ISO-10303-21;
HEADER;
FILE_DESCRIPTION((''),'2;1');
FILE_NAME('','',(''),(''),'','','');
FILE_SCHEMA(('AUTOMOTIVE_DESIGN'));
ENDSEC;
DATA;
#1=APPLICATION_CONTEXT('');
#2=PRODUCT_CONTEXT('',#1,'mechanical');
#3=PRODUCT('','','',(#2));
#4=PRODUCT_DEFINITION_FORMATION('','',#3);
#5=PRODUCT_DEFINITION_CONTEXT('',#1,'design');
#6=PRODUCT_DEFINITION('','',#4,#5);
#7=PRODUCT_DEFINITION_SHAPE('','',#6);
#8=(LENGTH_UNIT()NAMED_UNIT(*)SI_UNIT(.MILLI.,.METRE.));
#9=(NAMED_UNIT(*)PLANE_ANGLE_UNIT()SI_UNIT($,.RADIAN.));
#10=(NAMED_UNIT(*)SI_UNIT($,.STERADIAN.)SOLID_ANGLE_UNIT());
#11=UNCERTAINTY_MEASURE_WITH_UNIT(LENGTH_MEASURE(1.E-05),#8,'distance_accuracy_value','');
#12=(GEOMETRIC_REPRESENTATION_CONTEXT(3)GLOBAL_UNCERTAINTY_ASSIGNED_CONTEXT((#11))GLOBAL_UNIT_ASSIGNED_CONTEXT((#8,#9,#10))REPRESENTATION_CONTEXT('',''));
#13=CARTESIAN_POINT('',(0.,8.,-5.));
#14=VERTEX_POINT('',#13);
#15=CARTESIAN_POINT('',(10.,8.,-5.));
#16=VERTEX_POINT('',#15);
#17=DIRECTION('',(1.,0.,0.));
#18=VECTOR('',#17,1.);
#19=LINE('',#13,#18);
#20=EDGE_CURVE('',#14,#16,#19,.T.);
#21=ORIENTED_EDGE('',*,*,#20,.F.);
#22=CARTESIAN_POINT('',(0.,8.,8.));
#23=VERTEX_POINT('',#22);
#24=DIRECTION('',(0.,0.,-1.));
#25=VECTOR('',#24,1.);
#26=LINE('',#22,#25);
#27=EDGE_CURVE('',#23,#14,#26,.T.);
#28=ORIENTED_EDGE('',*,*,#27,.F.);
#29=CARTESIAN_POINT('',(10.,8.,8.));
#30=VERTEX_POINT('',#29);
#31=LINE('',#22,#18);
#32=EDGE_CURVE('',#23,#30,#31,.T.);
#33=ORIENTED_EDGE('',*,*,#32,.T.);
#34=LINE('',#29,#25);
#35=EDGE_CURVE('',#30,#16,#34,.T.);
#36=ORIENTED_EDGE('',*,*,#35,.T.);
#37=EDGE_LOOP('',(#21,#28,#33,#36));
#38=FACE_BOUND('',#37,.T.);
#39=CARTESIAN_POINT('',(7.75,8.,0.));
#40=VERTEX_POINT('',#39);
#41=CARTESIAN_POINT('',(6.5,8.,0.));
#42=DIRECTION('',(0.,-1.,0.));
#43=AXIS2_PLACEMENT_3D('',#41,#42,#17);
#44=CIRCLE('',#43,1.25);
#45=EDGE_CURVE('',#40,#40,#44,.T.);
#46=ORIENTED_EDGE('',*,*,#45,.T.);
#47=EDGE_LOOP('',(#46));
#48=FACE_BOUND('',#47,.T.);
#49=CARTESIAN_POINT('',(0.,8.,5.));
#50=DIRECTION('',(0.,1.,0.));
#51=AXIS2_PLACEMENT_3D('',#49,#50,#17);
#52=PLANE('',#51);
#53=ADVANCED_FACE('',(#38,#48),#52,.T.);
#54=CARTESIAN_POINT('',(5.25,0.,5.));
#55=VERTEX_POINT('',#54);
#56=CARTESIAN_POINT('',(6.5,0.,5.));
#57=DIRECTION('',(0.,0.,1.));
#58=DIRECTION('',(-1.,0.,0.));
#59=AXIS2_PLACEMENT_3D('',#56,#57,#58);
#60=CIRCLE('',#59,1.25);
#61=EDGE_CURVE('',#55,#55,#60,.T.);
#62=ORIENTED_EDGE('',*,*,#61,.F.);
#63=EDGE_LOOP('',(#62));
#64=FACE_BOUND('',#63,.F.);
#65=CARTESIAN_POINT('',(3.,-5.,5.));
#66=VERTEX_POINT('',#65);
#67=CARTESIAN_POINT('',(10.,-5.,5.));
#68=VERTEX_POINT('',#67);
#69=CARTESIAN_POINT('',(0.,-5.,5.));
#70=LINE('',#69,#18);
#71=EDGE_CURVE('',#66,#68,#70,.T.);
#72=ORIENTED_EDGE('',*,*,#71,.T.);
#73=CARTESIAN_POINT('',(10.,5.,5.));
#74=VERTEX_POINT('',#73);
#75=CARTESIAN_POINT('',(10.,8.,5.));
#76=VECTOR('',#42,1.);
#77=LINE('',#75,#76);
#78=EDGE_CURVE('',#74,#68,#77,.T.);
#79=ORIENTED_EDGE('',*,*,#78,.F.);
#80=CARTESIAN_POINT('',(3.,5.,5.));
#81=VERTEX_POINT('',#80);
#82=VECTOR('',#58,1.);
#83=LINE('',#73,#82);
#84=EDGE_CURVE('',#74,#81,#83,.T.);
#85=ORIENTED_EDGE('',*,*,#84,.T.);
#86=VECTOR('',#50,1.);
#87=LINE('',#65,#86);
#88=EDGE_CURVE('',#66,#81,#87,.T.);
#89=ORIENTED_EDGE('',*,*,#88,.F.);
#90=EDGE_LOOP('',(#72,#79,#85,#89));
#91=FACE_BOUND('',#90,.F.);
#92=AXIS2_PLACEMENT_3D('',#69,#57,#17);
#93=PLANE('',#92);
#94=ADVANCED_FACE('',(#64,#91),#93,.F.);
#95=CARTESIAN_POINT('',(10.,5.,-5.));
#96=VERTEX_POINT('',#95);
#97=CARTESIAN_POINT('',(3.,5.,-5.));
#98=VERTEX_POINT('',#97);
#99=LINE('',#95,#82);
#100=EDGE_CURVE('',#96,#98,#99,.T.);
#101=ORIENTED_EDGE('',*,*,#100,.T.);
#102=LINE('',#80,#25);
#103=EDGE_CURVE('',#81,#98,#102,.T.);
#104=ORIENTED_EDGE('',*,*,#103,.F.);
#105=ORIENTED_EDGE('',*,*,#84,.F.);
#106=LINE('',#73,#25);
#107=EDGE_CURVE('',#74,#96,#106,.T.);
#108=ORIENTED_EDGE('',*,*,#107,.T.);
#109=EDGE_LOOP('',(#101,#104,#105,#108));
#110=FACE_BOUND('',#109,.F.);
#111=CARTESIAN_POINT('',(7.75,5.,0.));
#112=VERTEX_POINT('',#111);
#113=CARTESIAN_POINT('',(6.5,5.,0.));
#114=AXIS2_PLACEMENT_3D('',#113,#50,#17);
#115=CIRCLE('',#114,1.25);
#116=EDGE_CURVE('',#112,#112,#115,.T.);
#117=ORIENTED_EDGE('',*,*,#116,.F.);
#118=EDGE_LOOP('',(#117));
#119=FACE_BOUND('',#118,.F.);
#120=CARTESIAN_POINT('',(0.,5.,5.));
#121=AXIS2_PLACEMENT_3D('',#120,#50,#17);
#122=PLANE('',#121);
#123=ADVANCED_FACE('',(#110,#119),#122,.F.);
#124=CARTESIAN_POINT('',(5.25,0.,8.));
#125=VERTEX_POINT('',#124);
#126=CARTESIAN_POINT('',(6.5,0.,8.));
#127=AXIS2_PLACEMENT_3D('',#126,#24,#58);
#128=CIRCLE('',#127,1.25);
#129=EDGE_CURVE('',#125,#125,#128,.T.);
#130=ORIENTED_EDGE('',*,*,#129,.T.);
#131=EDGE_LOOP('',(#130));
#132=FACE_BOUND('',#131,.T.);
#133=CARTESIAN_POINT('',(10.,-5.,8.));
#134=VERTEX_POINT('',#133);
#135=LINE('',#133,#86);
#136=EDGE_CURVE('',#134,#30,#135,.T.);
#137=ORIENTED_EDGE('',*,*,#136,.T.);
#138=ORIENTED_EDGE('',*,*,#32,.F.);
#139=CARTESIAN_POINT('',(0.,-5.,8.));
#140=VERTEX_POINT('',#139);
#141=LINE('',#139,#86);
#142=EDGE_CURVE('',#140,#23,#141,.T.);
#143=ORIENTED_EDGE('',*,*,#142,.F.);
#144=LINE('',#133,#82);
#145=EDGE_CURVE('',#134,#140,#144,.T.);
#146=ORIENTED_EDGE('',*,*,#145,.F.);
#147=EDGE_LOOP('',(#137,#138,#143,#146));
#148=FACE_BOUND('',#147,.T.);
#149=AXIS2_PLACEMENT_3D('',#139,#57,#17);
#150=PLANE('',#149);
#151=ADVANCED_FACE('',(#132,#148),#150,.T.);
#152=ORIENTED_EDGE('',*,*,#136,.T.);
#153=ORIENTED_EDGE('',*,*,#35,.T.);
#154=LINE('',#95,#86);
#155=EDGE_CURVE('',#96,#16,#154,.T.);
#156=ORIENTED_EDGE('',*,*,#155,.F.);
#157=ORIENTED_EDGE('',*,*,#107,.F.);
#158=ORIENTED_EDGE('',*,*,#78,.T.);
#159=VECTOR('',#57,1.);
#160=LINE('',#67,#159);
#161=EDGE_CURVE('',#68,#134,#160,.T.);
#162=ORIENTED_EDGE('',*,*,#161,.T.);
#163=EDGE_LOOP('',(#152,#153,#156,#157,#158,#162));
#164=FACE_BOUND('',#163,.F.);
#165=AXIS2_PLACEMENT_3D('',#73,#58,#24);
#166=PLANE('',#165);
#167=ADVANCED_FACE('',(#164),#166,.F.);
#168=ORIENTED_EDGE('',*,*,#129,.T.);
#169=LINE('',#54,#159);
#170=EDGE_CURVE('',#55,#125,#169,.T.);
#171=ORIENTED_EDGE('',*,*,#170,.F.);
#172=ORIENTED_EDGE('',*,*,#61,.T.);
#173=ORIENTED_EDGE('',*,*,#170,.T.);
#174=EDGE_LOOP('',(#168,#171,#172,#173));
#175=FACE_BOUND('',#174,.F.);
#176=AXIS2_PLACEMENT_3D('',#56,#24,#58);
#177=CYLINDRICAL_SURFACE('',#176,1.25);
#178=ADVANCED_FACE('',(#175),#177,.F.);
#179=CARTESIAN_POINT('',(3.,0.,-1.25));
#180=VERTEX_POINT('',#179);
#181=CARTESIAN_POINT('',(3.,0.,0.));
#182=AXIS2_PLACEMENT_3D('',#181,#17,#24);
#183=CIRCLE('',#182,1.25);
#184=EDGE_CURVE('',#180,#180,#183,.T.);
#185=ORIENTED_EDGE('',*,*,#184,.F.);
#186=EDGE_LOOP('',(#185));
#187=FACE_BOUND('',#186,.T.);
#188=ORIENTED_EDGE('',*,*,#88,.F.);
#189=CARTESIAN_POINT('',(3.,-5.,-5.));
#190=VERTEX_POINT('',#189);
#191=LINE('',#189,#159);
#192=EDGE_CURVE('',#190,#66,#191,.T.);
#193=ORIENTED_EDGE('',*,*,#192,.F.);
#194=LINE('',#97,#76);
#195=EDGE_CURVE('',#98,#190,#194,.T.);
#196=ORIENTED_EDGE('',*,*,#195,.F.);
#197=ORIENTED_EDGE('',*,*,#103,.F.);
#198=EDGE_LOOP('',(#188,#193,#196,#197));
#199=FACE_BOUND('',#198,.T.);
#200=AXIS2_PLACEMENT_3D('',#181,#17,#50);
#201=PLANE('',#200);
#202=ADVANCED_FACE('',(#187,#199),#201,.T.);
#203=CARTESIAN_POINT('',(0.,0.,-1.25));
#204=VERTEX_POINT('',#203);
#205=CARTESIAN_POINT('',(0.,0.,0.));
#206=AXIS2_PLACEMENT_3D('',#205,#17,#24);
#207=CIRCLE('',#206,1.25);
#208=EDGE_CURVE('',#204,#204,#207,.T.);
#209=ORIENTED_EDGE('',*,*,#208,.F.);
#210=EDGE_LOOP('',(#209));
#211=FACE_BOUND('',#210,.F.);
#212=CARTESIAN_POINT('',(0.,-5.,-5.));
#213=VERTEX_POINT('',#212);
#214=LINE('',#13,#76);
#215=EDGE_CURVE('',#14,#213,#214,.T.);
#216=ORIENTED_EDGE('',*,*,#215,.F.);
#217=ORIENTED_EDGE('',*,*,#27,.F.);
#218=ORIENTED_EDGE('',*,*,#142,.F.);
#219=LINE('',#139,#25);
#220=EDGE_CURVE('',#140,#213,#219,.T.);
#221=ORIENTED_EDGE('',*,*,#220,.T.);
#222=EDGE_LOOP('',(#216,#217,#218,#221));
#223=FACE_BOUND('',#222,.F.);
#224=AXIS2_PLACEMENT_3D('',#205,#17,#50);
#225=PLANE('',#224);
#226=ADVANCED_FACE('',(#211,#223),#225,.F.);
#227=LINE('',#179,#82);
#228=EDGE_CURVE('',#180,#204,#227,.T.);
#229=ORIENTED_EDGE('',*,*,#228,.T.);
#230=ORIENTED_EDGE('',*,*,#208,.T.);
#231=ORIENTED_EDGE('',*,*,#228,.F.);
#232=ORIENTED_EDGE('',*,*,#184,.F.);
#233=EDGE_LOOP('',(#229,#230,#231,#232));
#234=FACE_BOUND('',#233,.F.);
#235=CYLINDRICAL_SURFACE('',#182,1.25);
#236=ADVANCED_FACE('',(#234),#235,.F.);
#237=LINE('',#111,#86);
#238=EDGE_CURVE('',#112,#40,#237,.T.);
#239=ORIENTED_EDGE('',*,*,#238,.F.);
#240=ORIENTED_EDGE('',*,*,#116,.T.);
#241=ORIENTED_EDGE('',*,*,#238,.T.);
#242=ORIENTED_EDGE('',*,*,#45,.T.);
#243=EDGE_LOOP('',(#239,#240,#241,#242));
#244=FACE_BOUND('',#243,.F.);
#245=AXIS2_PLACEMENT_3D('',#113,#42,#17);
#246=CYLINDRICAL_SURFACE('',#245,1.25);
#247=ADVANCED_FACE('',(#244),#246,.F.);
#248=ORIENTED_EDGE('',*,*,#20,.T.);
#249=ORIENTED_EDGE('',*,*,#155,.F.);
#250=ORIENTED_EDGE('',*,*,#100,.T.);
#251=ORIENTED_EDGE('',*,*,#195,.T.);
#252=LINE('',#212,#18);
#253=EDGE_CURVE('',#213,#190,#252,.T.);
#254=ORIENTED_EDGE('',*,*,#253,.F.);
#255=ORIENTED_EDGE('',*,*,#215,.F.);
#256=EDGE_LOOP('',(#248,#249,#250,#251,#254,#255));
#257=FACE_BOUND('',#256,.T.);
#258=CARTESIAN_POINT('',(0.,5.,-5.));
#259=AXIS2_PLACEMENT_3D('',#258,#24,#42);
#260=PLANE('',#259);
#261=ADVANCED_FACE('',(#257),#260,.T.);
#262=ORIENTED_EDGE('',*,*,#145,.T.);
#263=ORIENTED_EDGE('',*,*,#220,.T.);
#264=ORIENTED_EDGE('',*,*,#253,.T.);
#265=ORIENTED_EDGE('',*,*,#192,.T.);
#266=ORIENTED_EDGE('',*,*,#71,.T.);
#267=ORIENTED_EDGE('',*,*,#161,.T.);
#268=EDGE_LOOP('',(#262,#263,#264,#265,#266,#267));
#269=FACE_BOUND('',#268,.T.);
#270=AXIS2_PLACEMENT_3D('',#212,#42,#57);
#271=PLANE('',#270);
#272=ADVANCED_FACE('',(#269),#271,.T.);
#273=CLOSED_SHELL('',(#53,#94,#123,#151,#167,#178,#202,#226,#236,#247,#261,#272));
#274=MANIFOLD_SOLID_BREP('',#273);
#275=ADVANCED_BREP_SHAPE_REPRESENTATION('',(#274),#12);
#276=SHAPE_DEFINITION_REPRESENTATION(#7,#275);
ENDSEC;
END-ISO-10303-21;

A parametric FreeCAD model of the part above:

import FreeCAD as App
import Part
import Sketcher

doc = App.newDocument("Part")
body = doc.addObject("PartDesign::Body", "Body")

sketch1 = doc.addObject("Sketcher::SketchObject", "Sketch")
body.addObject(sketch1)
sketch1.AttachmentSupport = (doc.YZ_Plane, [""])
sketch1.MapMode = "FlatFace"
sketch1.addGeometry(Part.LineSegment(App.Vector(5, 5, 0), App.Vector(-5, 5, 0)), False)
sketch1.addGeometry(Part.LineSegment(App.Vector(-5, 5, 0), App.Vector(-5, -5, 0)), False)
sketch1.addGeometry(Part.LineSegment(App.Vector(-5, -5, 0), App.Vector(5, -5, 0)), False)
sketch1.addGeometry(Part.LineSegment(App.Vector(5, -5, 0), App.Vector(5, 5, 0)), False)
sketch1.addConstraint(Sketcher.Constraint("Coincident", 0, 2, 1, 1))
sketch1.addConstraint(Sketcher.Constraint("Coincident", 1, 2, 2, 1))
sketch1.addConstraint(Sketcher.Constraint("Coincident", 2, 2, 3, 1))
sketch1.addConstraint(Sketcher.Constraint("Coincident", 3, 2, 0, 1))
sketch1.addConstraint(Sketcher.Constraint("Horizontal", 0))
sketch1.addConstraint(Sketcher.Constraint("Vertical", 1))
sketch1.addConstraint(Sketcher.Constraint("Horizontal", 2))
sketch1.addConstraint(Sketcher.Constraint("Vertical", 3))
sketch1.addConstraint(Sketcher.Constraint("Symmetric", 0, 2, 2, 2, -1, 1))
sketch1.addConstraint(Sketcher.Constraint("Equal", 2, 1))
sketch1.addConstraint(Sketcher.Constraint("DistanceX", 0, 2, 0, 1, 10.0))
pad1 = doc.addObject("PartDesign::Pad", "Pad")
body.addObject(pad1)
pad1.Profile = sketch1
pad1.Length = 3

sketch2 = doc.addObject("Sketcher::SketchObject", "Sketch001")
body.addObject(sketch2)
sketch2.AttachmentSupport = (doc.XZ_Plane, [""])
sketch2.MapMode = "FlatFace"
sketch2.AttachmentOffset = App.Placement(App.Vector(0, 0, -5), App.Rotation())
sketch2.addGeometry(Part.LineSegment(App.Vector(0, -5, 0), App.Vector(0, 5, 0)), False)
sketch2.addGeometry(Part.LineSegment(App.Vector(0, 5, 0), App.Vector(10, 5, 0)), False)
sketch2.addGeometry(Part.LineSegment(App.Vector(10, 5, 0), App.Vector(10, -5, 0)), False)
sketch2.addGeometry(Part.LineSegment(App.Vector(10, -5, 0), App.Vector(0, -5, 0)), False)
sketch2.addConstraint(Sketcher.Constraint("Coincident", 0, 2, 1, 1))
sketch2.addConstraint(Sketcher.Constraint("Coincident", 1, 2, 2, 1))
sketch2.addConstraint(Sketcher.Constraint("Coincident", 2, 2, 3, 1))
sketch2.addConstraint(Sketcher.Constraint("Coincident", 3, 2, 0, 1))
sketch2.addConstraint(Sketcher.Constraint("Vertical", 0))
sketch2.addConstraint(Sketcher.Constraint("Horizontal", 1))
sketch2.addConstraint(Sketcher.Constraint("Vertical", 2))
sketch2.addConstraint(Sketcher.Constraint("Horizontal", 3))
sketch2.addConstraint(Sketcher.Constraint("Symmetric", 0, 2, 3, 2, -1, 1))
sketch2.addConstraint(Sketcher.Constraint("Equal", 3, 0))
sketch2.addConstraint(Sketcher.Constraint("DistanceX", 1, 1, 1, 2, 10.0))
pad2 = doc.addObject("PartDesign::Pad", "Pad001")
body.addObject(pad2)
pad2.Profile = sketch2
pad2.Length = 3
pad2.Reversed = True

sketch3 = doc.addObject("Sketcher::SketchObject", "Sketch002")
body.addObject(sketch3)
sketch3.AttachmentSupport = (doc.XY_Plane, [""])
sketch3.MapMode = "FlatFace"
sketch3.AttachmentOffset = App.Placement(App.Vector(0, 0, 5), App.Rotation())
sketch3.addGeometry(Part.LineSegment(App.Vector(0, 8, 0), App.Vector(0, -5, 0)), False)
sketch3.addGeometry(Part.LineSegment(App.Vector(0, -5, 0), App.Vector(10, -5, 0)), False)
sketch3.addGeometry(Part.LineSegment(App.Vector(10, -5, 0), App.Vector(10, 8, 0)), False)
sketch3.addGeometry(Part.LineSegment(App.Vector(10, 8, 0), App.Vector(0, 8, 0)), False)
sketch3.addConstraint(Sketcher.Constraint("Coincident", 0, 2, 1, 1))
sketch3.addConstraint(Sketcher.Constraint("Coincident", 1, 2, 2, 1))
sketch3.addConstraint(Sketcher.Constraint("Coincident", 2, 2, 3, 1))
sketch3.addConstraint(Sketcher.Constraint("Coincident", 3, 2, 0, 1))
sketch3.addConstraint(Sketcher.Constraint("Vertical", 0))
sketch3.addConstraint(Sketcher.Constraint("Horizontal", 1))
sketch3.addConstraint(Sketcher.Constraint("Vertical", 2))
sketch3.addConstraint(Sketcher.Constraint("Horizontal", 3))
sketch3.addConstraint(Sketcher.Constraint("PointOnObject", 0, 2, -2))
sketch3.addConstraint(Sketcher.Constraint("DistanceX", 1, 1, 1, 2, 10.0))
sketch3.addConstraint(Sketcher.Constraint("DistanceY", 0, 2, 0, 1, 13.0))
sketch3.addConstraint(Sketcher.Constraint("DistanceY", 0, 2, -1, 1, 5.0))
pad3 = doc.addObject("PartDesign::Pad", "Pad002")
body.addObject(pad3)
pad3.Profile = sketch3
pad3.Length = 3

sketch4 = doc.addObject("Sketcher::SketchObject", "Sketch003")
body.addObject(sketch4)
sketch4.AttachmentSupport = (doc.YZ_Plane, [""])
sketch4.MapMode = "FlatFace"
sketch4.AttachmentOffset = App.Placement(App.Vector(0, 0, 3), App.Rotation())
sketch4.addGeometry(Part.Circle(App.Vector(0, 0, 0), App.Vector(0, 0, 1), 1.2), False)
sketch4.addConstraint(Sketcher.Constraint("Coincident", 0, 3, -1, 1))
sketch4.addConstraint(Sketcher.Constraint("Diameter", 0, 2.5))
pocket1 = doc.addObject("PartDesign::Pocket", "Pocket")
body.addObject(pocket1)
pocket1.Profile = sketch4
pocket1.Length = 3

sketch5 = doc.addObject("Sketcher::SketchObject", "Sketch004")
body.addObject(sketch5)
sketch5.AttachmentSupport = (doc.XZ_Plane, [""])
sketch5.MapMode = "FlatFace"
sketch5.AttachmentOffset = App.Placement(App.Vector(0, 0, -5), App.Rotation())
sketch5.addGeometry(Part.Circle(App.Vector(6.5, 0, 0), App.Vector(0, 0, 1), 1.2), False)
sketch5.addConstraint(Sketcher.Constraint("PointOnObject", 0, 3, -1))
sketch5.addConstraint(Sketcher.Constraint("Diameter", 0, 2.5))
sketch5.addConstraint(Sketcher.Constraint("DistanceX", -1, 1, 0, 3, 6.5))
pocket2 = doc.addObject("PartDesign::Pocket", "Pocket001")
body.addObject(pocket2)
pocket2.Profile = sketch5
pocket2.Length = 3

sketch6 = doc.addObject("Sketcher::SketchObject", "Sketch005")
body.addObject(sketch6)
sketch6.AttachmentSupport = (doc.XY_Plane, [""])
sketch6.MapMode = "FlatFace"
sketch6.AttachmentOffset = App.Placement(App.Vector(0, 0, 5), App.Rotation())
sketch6.addGeometry(Part.Circle(App.Vector(6.5, 0, 0), App.Vector(0, 0, 1), 1.2), False)
sketch6.addConstraint(Sketcher.Constraint("PointOnObject", 0, 3, -1))
sketch6.addConstraint(Sketcher.Constraint("Diameter", 0, 2.5))
sketch6.addConstraint(Sketcher.Constraint("DistanceX", -1, 1, 0, 3, 6.5))
pocket3 = doc.addObject("PartDesign::Pocket", "Pocket002")
body.addObject(pocket3)
pocket3.Profile = sketch6
pocket3.Length = 3
pocket3.Reversed = True

doc.recompute()
